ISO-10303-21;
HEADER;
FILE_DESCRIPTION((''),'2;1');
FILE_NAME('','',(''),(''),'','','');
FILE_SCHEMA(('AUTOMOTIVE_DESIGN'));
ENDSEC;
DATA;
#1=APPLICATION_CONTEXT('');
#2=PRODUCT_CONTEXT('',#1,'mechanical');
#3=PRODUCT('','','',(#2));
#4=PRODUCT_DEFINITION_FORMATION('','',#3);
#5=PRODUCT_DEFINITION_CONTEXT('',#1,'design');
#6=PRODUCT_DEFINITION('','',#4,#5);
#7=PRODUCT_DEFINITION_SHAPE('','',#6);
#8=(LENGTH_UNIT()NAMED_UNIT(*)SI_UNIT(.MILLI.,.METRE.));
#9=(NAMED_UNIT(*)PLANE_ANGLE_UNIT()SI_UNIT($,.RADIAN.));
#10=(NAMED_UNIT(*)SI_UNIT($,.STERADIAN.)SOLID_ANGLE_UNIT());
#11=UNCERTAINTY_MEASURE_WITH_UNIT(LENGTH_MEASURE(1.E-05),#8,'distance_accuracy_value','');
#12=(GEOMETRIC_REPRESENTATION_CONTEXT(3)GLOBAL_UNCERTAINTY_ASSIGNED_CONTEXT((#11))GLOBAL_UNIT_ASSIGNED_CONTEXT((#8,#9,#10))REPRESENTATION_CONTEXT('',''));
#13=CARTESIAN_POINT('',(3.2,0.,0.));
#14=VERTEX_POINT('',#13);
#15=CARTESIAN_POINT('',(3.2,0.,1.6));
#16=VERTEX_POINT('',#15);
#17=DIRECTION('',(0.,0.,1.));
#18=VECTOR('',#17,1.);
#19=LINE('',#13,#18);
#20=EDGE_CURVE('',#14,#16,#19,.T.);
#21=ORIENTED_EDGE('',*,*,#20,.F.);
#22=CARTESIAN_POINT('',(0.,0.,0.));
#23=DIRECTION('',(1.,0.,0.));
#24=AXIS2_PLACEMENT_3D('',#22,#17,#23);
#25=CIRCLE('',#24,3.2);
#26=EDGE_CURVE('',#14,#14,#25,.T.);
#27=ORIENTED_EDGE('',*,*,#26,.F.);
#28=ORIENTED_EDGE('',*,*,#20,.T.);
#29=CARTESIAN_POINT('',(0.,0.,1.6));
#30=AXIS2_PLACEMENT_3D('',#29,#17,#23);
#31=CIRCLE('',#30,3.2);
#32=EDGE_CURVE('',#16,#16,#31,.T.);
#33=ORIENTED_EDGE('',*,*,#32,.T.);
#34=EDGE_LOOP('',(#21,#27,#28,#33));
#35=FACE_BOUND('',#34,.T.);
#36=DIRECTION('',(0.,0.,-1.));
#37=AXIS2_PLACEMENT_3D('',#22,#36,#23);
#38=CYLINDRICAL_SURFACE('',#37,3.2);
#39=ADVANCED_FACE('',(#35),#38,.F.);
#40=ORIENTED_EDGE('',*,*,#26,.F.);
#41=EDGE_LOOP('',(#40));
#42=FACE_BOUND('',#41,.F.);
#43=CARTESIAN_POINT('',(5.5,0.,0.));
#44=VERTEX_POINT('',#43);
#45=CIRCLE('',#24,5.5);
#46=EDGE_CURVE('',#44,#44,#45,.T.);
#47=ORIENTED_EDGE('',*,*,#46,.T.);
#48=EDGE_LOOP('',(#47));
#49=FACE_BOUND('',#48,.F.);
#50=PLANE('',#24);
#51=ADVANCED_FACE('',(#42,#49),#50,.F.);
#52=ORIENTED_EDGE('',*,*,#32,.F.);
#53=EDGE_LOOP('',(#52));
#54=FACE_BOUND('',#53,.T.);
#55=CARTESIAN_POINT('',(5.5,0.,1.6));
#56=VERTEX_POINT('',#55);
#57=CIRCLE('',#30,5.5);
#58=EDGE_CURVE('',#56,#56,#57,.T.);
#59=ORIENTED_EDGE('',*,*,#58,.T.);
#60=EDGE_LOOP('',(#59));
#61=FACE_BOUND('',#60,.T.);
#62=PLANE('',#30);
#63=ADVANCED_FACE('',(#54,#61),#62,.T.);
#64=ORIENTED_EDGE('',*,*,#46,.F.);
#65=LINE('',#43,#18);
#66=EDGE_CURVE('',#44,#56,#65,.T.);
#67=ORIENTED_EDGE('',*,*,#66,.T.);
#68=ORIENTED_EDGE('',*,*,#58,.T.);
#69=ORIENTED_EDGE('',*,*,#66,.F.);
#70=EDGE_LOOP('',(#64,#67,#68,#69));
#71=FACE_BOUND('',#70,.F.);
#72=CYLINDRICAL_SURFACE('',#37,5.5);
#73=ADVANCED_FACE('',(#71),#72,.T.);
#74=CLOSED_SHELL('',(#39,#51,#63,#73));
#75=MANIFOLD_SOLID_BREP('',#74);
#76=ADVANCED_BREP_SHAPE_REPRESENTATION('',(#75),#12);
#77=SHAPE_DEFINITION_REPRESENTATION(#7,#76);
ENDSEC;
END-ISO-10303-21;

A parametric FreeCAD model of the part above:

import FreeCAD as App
import Part
import Sketcher
from FreeCAD import Vector
Q = App.Units.Quantity

doc = App.newDocument("Part")
body = doc.addObject("PartDesign::Body", "Body")

# Sketch on XY plane
sketch1 = body.newObject("Sketcher::SketchObject", "Sketch")
sketch1.AttachmentSupport = (doc.getObject("XY_Plane"), [""])
sketch1.MapMode = "FlatFace"
sketch1.addGeometry(Part.Circle(Vector(0, 0, 0), Vector(0, 0, 1), 5.5), False)
sketch1.addGeometry(Part.Circle(Vector(0, 0, 0), Vector(0, 0, 1), 3.2), False)
sketch1.addConstraint(Sketcher.Constraint("Coincident", 0, 3, -1, 1))
sketch1.addConstraint(Sketcher.Constraint("Coincident", 1, 3, -1, 1))
sketch1.addConstraint(Sketcher.Constraint("Diameter", 0, Q("11 mm")))
sketch1.addConstraint(Sketcher.Constraint("Diameter", 1, Q("6.4 mm")))
pad1 = body.newObject("PartDesign::Pad", "Pad")
pad1.Profile = sketch1
pad1.Length = 1.6

doc.recompute()
